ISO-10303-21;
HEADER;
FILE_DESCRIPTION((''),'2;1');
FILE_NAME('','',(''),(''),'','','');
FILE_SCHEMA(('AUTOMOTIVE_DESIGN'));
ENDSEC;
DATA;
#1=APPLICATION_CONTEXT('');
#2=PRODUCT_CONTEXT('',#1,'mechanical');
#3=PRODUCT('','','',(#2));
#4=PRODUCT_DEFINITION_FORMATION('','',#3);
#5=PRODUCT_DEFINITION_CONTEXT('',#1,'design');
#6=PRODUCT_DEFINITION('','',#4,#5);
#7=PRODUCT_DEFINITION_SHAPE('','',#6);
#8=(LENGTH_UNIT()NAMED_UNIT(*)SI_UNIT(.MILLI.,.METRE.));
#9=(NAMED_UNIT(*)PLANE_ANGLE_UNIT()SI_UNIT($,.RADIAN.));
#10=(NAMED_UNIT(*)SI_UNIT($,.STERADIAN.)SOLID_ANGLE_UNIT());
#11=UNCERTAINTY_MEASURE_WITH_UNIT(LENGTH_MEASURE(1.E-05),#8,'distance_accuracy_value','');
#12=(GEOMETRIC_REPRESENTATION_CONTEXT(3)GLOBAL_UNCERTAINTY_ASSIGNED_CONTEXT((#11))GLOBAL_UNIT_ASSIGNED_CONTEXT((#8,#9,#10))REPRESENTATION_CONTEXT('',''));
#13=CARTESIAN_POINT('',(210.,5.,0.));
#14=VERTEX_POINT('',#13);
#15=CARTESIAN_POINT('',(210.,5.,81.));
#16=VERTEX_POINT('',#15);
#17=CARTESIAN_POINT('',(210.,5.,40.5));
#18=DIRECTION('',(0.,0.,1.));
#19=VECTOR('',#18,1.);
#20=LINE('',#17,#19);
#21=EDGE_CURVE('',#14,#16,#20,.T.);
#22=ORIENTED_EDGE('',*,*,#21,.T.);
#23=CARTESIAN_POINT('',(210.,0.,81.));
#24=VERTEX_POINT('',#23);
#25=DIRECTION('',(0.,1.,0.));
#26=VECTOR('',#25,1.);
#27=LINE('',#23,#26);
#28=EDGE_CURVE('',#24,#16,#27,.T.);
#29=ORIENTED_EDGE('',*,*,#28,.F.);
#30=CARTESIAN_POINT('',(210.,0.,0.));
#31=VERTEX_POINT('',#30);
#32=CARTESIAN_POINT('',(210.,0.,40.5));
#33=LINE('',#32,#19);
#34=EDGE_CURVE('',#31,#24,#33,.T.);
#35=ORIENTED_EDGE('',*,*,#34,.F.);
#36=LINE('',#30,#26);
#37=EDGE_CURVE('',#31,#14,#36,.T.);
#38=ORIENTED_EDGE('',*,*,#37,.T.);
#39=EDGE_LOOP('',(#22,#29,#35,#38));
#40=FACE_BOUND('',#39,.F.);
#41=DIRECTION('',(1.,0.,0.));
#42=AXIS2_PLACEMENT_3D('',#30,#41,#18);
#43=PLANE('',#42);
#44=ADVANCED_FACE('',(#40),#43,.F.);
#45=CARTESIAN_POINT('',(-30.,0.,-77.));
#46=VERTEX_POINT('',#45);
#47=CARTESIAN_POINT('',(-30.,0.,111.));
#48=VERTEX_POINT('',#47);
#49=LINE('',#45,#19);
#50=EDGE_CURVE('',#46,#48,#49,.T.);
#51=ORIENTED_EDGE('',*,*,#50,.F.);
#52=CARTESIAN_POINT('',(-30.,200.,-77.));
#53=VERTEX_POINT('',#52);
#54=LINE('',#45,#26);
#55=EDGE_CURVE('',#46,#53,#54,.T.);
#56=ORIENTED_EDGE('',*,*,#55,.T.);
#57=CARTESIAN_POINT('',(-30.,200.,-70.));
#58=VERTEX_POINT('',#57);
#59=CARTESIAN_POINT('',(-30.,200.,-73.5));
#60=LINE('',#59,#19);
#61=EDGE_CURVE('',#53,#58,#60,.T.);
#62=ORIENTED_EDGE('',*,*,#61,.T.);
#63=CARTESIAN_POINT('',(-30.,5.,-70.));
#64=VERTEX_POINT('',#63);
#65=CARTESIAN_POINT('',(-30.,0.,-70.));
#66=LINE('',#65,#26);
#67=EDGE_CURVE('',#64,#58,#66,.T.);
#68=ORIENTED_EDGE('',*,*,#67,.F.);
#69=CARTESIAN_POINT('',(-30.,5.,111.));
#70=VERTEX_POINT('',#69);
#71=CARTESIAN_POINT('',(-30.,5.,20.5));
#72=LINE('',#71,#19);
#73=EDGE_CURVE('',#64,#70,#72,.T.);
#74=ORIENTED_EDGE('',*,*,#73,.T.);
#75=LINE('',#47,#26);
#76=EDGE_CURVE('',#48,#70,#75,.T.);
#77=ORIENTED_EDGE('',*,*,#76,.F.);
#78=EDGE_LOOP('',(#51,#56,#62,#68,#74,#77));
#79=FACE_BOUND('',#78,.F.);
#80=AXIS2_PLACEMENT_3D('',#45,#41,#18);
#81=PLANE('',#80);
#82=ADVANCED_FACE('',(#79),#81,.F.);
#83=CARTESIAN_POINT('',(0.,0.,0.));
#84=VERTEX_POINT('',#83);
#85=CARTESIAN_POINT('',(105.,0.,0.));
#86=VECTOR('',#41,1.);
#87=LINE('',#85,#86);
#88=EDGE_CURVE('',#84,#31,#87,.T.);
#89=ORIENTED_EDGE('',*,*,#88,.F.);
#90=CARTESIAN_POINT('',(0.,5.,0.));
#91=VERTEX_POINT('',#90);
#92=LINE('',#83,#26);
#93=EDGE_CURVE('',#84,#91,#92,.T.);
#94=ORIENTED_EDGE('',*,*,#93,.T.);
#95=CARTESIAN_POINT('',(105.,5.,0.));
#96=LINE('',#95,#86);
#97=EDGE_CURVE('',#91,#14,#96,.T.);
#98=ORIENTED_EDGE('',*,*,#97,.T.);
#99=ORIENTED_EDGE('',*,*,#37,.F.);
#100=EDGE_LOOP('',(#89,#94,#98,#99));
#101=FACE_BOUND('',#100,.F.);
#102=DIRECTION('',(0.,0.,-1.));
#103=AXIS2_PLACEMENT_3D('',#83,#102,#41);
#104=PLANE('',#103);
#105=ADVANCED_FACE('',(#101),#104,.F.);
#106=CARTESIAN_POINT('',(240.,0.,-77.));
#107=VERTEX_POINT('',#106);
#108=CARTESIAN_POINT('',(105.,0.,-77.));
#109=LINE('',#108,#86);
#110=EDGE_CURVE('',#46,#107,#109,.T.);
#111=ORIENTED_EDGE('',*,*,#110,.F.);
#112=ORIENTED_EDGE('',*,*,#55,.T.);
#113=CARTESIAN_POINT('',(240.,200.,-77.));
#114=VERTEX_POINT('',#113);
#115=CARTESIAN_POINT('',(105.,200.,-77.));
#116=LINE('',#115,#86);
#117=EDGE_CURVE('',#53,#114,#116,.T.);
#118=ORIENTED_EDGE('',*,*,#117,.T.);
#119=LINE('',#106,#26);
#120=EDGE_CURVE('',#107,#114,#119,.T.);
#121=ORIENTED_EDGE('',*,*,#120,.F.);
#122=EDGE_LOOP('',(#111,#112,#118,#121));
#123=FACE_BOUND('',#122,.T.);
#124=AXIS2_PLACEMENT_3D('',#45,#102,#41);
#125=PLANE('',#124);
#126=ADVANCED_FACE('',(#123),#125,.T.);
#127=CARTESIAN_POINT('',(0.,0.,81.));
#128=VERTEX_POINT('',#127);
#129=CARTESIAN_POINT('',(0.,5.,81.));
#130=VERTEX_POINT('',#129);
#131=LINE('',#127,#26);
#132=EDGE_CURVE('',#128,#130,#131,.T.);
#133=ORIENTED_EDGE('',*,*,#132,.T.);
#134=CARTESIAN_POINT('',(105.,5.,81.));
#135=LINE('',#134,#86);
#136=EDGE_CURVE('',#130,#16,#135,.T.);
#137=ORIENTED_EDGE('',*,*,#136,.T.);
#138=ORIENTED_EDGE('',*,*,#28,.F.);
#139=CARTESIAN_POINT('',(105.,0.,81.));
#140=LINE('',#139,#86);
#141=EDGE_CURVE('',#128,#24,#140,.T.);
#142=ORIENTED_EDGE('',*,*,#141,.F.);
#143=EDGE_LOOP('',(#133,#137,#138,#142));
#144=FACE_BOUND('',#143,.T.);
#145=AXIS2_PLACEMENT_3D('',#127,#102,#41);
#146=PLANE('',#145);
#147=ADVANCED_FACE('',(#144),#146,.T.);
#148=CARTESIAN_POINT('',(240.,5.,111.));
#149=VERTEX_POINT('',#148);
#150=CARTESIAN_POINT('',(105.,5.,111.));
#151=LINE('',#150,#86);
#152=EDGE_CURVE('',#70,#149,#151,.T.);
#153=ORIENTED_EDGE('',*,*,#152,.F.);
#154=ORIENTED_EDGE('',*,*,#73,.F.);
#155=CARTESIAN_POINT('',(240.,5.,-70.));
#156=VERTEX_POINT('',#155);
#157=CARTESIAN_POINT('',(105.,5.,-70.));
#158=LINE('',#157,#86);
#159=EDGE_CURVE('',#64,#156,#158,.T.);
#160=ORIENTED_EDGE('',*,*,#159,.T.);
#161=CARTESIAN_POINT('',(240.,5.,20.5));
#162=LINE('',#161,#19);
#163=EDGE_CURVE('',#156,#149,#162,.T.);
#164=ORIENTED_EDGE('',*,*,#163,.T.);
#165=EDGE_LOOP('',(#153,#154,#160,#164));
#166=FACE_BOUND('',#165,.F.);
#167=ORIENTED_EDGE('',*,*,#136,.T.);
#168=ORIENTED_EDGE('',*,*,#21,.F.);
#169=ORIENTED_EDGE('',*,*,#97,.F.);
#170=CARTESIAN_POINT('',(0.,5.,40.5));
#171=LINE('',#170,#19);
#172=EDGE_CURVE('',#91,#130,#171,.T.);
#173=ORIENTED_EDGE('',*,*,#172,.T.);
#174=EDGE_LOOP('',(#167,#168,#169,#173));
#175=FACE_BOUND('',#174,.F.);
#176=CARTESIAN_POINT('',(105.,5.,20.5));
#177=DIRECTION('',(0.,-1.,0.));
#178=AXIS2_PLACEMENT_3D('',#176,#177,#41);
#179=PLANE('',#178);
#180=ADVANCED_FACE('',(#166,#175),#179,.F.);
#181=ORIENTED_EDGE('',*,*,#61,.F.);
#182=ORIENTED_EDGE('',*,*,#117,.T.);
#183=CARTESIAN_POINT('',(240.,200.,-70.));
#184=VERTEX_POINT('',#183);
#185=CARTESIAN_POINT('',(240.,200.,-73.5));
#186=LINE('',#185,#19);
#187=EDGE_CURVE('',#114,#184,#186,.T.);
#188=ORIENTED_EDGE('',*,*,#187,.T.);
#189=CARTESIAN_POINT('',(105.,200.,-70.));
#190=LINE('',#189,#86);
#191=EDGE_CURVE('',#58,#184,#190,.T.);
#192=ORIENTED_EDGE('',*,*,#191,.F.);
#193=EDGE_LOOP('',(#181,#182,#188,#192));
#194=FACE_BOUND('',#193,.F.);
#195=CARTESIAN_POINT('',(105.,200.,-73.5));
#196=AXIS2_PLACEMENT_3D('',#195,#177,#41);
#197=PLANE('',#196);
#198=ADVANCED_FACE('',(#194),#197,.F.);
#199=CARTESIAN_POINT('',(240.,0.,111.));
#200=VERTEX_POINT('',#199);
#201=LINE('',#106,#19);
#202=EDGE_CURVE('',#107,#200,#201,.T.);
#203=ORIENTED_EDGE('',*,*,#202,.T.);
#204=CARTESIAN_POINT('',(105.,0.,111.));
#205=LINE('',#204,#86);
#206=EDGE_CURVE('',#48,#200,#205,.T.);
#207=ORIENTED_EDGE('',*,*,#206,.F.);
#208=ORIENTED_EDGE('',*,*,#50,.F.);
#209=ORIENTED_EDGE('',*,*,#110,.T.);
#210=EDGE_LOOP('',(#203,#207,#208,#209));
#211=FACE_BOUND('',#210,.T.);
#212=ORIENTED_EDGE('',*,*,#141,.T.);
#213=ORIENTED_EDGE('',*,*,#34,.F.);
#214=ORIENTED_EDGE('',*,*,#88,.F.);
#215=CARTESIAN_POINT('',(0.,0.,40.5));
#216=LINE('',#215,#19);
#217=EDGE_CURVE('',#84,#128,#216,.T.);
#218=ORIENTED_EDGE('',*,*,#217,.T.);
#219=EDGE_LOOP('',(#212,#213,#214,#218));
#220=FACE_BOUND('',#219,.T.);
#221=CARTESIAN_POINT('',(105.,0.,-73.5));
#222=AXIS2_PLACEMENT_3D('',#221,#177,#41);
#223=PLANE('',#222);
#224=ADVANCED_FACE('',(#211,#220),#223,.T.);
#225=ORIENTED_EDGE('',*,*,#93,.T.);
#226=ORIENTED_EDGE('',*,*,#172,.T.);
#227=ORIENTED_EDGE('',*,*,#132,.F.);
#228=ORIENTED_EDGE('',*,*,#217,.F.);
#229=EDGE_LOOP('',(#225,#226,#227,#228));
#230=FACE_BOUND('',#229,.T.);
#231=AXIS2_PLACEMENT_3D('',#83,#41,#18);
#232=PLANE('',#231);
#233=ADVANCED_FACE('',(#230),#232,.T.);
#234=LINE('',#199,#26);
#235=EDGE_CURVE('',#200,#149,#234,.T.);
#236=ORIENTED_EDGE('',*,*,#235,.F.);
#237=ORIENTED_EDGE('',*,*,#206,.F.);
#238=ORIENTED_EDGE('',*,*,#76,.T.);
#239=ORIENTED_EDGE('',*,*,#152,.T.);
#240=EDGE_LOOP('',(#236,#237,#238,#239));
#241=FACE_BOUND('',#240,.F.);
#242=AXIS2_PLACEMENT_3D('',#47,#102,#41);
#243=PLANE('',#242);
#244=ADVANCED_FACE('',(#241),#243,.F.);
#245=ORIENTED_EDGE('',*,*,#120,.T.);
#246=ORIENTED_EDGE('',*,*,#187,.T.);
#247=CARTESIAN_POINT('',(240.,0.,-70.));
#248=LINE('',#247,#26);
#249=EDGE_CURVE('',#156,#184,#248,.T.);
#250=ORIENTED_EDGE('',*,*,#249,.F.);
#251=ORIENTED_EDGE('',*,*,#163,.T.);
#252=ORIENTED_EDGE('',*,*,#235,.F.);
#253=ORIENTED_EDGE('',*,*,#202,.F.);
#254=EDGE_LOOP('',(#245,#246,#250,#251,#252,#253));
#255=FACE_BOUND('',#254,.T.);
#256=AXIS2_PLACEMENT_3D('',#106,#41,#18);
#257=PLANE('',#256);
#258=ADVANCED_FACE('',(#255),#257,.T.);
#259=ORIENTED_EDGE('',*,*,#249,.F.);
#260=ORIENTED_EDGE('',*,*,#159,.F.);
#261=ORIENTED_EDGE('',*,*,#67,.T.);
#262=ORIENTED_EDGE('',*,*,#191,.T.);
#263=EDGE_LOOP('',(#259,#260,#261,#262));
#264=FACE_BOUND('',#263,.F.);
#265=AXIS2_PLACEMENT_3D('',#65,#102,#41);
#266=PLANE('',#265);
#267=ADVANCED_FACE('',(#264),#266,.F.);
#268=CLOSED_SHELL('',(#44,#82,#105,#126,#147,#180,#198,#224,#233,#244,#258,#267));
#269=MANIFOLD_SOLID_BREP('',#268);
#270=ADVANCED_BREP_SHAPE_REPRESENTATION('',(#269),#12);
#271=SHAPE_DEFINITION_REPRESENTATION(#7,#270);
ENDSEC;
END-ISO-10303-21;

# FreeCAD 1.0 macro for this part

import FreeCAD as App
import Part
import Sketcher
Q = App.Units.Quantity


def add_polygon(sketch, points):
    """Adds a closed chain of lines whose ends are joined by coincident constraints."""
    first, n = sketch.GeometryCount, len(points)
    for a, b in zip(points, points[1:] + points[:1]):
        sketch.addGeometry(Part.LineSegment(App.Vector(*a, 0), App.Vector(*b, 0)), False)
    for i in range(n):
        sketch.addConstraint(Sketcher.Constraint("Coincident", first + i, 2, first + (i + 1) % n, 1))

doc = App.newDocument("Part")
params = doc.addObject("Spreadsheet::Sheet", "Params")
for row, (alias, value) in enumerate([
    ("sketch1_width", "270 mm"),
    ("sketch1_width2", "210 mm"),
    ("sketch1_height", "181 mm"),
    ("sketch1_height2", "81 mm"),
    ("pad1_length", "5 mm"),
    ("sketch2_width", "270 mm"),
    ("sketch2_height", "7 mm"),
    ("pad2_length", "200 mm"),
], start=1):
    params.set(f"A{row}", alias)
    params.set(f"B{row}", "=" + value)
    params.setAlias(f"B{row}", alias)

body = doc.addObject("PartDesign::Body", "Body")

sketch1 = body.newObject("Sketcher::SketchObject", "Sketch")
sketch1.AttachmentSupport = (doc.getObject("XZ_Plane"), [""])
sketch1.MapMode = "FlatFace"
add_polygon(sketch1, [(-30, 111), (-30, -70), (240, -70), (240, 111)])
add_polygon(sketch1, [(210, 0), (0, 0), (0, 81), (210, 81)])
sketch1.addConstraint(Sketcher.Constraint("Vertical", 0))
sketch1.addConstraint(Sketcher.Constraint("Horizontal", 1))
sketch1.addConstraint(Sketcher.Constraint("Vertical", 2))
sketch1.addConstraint(Sketcher.Constraint("Horizontal", 3))
sketch1.addConstraint(Sketcher.Constraint("Horizontal", 4))
sketch1.addConstraint(Sketcher.Constraint("Vertical", 5))
sketch1.addConstraint(Sketcher.Constraint("Horizontal", 6))
sketch1.addConstraint(Sketcher.Constraint("Vertical", 7))
sketch1.addConstraint(Sketcher.Constraint("Coincident", 4, 2, -1, 1))
sketch1.addConstraint(Sketcher.Constraint("DistanceX", 1, 1, 1, 2, Q("270 mm")))
sketch1.addConstraint(Sketcher.Constraint("DistanceX", 4, 2, 4, 1, Q("210 mm")))
sketch1.addConstraint(Sketcher.Constraint("DistanceY", 0, 2, 0, 1, Q("181 mm")))
sketch1.addConstraint(Sketcher.Constraint("DistanceY", 5, 1, 5, 2, Q("81 mm")))
sketch1.addConstraint(Sketcher.Constraint("DistanceX", 0, 2, -1, 1, Q("30 mm")))
sketch1.addConstraint(Sketcher.Constraint("DistanceY", 0, 2, -1, 1, Q("70 mm")))
sketch1.setExpression("Constraints[17]", "Params.sketch1_width")
sketch1.setExpression("Constraints[18]", "Params.sketch1_width2")
sketch1.setExpression("Constraints[19]", "Params.sketch1_height")
sketch1.setExpression("Constraints[20]", "Params.sketch1_height2")
pad1 = body.newObject("PartDesign::Pad", "Pad")
pad1.Profile = sketch1
pad1.setExpression("Length", "Params.pad1_length")
pad1.Reversed = True

sketch2 = body.newObject("Sketcher::SketchObject", "Sketch001")
sketch2.AttachmentSupport = (doc.getObject("XZ_Plane"), [""])
sketch2.MapMode = "FlatFace"
add_polygon(sketch2, [(-30, -70), (-30, -77), (240, -77), (240, -70)])
sketch2.addConstraint(Sketcher.Constraint("Vertical", 0))
sketch2.addConstraint(Sketcher.Constraint("Horizontal", 1))
sketch2.addConstraint(Sketcher.Constraint("Vertical", 2))
sketch2.addConstraint(Sketcher.Constraint("Horizontal", 3))
sketch2.addConstraint(Sketcher.Constraint("DistanceX", 1, 1, 1, 2, Q("270 mm")))
sketch2.addConstraint(Sketcher.Constraint("DistanceY", 0, 2, 0, 1, Q("7 mm")))
sketch2.addConstraint(Sketcher.Constraint("DistanceX", 0, 2, -1, 1, Q("30 mm")))
sketch2.addConstraint(Sketcher.Constraint("DistanceY", 0, 2, -1, 1, Q("77 mm")))
sketch2.setExpression("Constraints[8]", "Params.sketch2_width")
sketch2.setExpression("Constraints[9]", "Params.sketch2_height")
pad2 = body.newObject("PartDesign::Pad", "Pad001")
pad2.Profile = sketch2
pad2.setExpression("Length", "Params.pad2_length")
pad2.Reversed = True

doc.recompute()
